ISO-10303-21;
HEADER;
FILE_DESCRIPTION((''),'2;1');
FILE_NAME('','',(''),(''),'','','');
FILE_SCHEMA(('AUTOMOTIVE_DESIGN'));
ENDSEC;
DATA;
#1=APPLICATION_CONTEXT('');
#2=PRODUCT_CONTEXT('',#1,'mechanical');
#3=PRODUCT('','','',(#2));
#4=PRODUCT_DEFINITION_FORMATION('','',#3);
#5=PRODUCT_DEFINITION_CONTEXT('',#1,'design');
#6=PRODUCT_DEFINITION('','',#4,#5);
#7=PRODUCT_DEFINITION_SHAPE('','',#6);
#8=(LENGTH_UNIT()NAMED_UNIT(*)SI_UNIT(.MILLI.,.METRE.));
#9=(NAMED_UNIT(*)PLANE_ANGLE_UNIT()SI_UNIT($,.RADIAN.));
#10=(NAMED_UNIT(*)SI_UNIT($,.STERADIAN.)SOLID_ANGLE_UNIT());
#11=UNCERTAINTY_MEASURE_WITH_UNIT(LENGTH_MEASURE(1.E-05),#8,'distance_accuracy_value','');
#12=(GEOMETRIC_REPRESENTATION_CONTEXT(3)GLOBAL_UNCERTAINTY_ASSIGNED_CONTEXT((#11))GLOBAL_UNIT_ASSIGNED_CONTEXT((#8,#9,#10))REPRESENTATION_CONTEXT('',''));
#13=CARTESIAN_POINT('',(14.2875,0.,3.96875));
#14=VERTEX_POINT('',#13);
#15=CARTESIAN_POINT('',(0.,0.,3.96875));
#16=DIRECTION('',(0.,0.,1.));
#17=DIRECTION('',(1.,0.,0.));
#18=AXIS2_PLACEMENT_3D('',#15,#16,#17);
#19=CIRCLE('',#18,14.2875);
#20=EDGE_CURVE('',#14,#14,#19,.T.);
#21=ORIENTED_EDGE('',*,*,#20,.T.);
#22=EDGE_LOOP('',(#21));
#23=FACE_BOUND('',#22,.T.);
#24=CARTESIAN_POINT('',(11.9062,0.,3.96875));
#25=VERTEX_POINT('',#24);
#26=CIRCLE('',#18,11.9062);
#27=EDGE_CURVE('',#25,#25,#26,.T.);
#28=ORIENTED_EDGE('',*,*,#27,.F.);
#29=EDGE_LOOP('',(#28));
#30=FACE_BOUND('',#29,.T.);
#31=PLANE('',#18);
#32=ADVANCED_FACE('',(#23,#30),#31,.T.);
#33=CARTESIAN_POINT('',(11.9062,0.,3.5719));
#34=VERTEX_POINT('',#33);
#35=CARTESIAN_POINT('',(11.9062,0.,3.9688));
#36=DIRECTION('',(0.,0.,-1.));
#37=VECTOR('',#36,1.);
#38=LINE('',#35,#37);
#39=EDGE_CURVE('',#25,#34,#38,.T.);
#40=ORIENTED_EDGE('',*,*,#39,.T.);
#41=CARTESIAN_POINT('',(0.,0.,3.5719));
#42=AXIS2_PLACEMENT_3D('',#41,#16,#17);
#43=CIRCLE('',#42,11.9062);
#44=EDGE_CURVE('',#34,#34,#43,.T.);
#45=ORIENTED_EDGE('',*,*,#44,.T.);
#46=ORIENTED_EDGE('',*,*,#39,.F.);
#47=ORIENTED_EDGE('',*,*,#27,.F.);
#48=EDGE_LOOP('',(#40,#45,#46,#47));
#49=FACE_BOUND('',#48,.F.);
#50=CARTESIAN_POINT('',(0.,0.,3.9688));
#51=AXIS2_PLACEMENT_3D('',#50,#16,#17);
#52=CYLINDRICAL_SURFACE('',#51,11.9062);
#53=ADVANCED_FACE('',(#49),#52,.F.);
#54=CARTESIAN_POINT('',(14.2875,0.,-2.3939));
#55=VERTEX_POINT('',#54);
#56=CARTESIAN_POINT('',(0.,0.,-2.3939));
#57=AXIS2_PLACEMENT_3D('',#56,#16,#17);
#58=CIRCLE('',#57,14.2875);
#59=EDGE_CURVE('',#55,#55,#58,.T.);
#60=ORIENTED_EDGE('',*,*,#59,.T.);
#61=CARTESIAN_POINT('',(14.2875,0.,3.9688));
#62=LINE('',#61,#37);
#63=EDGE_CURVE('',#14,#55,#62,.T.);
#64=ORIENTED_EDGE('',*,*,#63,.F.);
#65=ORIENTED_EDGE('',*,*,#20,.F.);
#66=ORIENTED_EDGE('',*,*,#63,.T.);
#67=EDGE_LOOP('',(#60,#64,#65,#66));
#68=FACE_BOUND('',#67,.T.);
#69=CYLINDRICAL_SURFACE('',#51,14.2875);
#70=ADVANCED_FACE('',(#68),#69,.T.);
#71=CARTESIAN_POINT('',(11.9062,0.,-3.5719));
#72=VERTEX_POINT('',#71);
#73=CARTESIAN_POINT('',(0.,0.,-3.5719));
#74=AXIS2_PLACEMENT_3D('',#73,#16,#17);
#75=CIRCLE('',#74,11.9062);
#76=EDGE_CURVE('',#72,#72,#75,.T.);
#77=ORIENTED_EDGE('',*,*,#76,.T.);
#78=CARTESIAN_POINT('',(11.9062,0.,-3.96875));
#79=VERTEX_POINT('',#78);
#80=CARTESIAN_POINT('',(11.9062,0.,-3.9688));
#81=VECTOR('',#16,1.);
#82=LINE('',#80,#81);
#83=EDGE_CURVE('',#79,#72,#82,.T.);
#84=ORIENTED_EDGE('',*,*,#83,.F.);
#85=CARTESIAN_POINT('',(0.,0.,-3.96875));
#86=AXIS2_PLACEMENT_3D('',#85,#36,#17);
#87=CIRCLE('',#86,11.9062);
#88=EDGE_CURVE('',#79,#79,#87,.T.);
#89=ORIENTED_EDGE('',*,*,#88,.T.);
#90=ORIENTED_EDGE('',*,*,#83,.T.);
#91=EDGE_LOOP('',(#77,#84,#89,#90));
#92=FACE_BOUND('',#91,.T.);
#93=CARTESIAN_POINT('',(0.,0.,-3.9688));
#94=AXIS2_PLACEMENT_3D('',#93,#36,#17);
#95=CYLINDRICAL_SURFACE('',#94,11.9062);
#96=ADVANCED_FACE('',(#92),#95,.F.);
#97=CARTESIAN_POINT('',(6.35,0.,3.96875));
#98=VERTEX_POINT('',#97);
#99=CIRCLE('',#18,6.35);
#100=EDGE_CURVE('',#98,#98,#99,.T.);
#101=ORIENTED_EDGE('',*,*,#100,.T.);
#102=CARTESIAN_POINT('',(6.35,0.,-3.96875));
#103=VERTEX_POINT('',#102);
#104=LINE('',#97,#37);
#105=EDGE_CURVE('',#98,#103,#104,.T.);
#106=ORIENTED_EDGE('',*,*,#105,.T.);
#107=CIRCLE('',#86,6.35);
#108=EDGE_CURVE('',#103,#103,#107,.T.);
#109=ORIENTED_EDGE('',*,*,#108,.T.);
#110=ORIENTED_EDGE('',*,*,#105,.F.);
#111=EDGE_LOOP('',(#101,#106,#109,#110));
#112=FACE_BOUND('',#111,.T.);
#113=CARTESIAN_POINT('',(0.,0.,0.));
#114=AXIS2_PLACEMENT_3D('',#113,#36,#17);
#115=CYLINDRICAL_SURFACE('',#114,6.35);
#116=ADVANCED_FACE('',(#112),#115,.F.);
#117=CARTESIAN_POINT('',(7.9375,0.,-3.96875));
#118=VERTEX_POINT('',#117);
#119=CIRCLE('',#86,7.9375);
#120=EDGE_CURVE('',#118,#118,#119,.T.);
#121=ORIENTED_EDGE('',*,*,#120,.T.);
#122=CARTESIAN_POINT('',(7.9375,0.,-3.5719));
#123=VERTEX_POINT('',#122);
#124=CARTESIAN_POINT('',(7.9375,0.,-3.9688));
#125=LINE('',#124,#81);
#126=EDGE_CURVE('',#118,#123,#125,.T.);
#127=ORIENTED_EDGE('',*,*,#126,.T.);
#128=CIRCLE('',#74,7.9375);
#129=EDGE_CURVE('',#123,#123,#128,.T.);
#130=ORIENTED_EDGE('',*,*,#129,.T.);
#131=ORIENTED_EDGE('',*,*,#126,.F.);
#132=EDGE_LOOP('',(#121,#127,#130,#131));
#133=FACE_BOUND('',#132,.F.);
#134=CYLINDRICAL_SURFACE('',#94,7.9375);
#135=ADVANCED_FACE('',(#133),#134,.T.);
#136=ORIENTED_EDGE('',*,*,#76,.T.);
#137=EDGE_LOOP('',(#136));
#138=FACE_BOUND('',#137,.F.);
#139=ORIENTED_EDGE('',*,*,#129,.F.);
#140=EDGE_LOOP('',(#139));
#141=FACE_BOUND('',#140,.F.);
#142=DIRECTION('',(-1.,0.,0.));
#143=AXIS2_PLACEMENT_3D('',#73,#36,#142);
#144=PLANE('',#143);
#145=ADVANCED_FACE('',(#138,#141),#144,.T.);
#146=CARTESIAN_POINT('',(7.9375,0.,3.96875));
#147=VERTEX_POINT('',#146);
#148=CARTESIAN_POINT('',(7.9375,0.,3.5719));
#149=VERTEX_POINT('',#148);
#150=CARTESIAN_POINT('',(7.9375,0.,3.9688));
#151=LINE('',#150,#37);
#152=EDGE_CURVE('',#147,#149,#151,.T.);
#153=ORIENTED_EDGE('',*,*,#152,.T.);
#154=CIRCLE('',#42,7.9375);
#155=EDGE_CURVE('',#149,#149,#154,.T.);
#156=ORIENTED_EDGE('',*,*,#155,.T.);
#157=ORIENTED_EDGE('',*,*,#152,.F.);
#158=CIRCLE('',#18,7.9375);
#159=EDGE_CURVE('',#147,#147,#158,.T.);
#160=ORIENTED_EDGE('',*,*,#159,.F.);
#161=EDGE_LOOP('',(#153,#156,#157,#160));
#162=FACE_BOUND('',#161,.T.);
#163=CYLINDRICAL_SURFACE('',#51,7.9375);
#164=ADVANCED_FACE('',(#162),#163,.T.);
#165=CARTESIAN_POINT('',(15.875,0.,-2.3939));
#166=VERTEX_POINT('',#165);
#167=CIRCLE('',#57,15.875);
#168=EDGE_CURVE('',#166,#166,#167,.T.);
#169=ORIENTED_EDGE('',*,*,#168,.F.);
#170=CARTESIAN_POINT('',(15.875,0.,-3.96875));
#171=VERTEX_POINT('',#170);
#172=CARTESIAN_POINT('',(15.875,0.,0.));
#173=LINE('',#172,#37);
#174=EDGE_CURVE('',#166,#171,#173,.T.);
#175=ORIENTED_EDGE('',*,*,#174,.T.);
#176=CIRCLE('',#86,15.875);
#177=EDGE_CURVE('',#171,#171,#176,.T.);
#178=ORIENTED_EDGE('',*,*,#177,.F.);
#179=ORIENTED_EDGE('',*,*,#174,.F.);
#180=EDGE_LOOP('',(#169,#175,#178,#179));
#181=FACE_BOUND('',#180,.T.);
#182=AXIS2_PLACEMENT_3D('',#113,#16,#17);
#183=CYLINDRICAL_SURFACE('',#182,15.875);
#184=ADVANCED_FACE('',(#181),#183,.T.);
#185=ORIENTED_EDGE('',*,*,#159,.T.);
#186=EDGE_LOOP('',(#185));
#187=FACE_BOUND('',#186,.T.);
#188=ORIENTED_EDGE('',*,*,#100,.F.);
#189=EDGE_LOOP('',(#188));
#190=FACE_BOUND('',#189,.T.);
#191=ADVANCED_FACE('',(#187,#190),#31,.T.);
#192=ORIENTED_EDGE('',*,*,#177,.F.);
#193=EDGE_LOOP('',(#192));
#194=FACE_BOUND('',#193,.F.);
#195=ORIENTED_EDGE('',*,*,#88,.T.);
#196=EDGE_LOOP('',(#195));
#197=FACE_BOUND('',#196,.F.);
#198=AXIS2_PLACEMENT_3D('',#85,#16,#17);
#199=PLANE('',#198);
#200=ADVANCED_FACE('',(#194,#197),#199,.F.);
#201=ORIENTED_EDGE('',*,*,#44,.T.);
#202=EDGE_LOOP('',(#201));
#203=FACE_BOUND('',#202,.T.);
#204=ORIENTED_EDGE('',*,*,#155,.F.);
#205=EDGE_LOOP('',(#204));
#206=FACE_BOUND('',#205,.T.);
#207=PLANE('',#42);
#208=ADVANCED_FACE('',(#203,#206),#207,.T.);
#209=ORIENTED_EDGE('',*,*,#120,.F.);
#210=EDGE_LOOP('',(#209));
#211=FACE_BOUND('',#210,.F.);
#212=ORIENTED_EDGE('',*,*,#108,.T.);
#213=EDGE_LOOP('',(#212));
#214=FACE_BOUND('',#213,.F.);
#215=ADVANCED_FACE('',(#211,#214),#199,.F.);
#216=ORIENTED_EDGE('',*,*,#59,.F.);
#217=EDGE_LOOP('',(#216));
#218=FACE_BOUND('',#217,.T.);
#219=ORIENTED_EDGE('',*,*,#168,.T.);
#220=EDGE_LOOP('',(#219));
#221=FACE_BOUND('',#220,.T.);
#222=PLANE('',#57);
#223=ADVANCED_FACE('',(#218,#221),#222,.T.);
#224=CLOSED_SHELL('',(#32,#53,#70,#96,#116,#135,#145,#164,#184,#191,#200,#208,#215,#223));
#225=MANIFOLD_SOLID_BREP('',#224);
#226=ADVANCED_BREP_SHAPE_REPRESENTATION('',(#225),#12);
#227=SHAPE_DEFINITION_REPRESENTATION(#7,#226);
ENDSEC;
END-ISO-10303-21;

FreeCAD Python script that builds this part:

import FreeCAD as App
import Part
import Sketcher

V = App.Vector
Q = App.Units.Quantity

doc = App.newDocument("Part")
body = doc.addObject("PartDesign::Body", "Body")

# Sketch on XY plane
sketch1 = body.newObject("Sketcher::SketchObject", "Sketch")
sketch1.AttachmentSupport = (doc.getObject("XY_Plane"), [""])
sketch1.MapMode = "FlatFace"
sketch1.addGeometry([
    Part.Circle(V(0, 0, 0), V(0, 0, 1), 16),
    Part.Circle(V(0, 0, 0), V(0, 0, 1), 6),
], False)
sketch1.addConstraint([
    Sketcher.Constraint("Coincident", 0, 3, -1, 1),
    Sketcher.Constraint("Coincident", 1, 3, -1, 1),
    Sketcher.Constraint("Diameter", 1, Q("0.5 in")),
    Sketcher.Constraint("Diameter", 0, Q("1.25 in")),
])
pad1 = body.newObject("PartDesign::Pad", "Pad")
pad1.Profile = sketch1
pad1.Length = Q("0.3125 in")
pad1.Midplane = True

# Sketch on XY plane
sketch2 = body.newObject("Sketcher::SketchObject", "Sketch001")
sketch2.AttachmentSupport = (doc.getObject("XY_Plane"), [""])
sketch2.MapMode = "FlatFace"
sketch2.AttachmentOffset = App.Placement(V(0, 0, 0.156252 * 25.4), App.Rotation())
sketch2.addGeometry([
    Part.Circle(V(0, 0, 0), V(0, 0, 1), 16),
    Part.Circle(V(0, 0, 0), V(0, 0, 1), 14),
], False)
sketch2.addConstraint([
    Sketcher.Constraint("Coincident", 0, 3, -1, 1),
    Sketcher.Constraint("Coincident", 1, 3, -1, 1),
    Sketcher.Constraint("Diameter", 1, Q("1.125 in")),
    Sketcher.Constraint("Diameter", 0, Q("1.25 in")),
])
pocket1 = body.newObject("PartDesign::Pocket", "Pocket")
pocket1.Profile = sketch2
pocket1.Length = Q("0.2505 in")

# Sketch on XY plane
sketch3 = body.newObject("Sketcher::SketchObject", "Sketch002")
sketch3.AttachmentSupport = (doc.getObject("XY_Plane"), [""])
sketch3.MapMode = "FlatFace"
sketch3.AttachmentOffset = App.Placement(V(0, 0, 0.156252 * 25.4), App.Rotation())
sketch3.addGeometry([
    Part.Circle(V(0, 0, 0), V(0, 0, 1), 12),
    Part.Circle(V(0, 0, 0), V(0, 0, 1), 8),
], False)
sketch3.addConstraint([
    Sketcher.Constraint("Coincident", 0, 3, -1, 1),
    Sketcher.Constraint("Coincident", 1, 3, -1, 1),
    Sketcher.Constraint("Diameter", 0, Q("0.9375 in")),
    Sketcher.Constraint("Diameter", 1, Q("0.625 in")),
])
pocket2 = body.newObject("PartDesign::Pocket", "Pocket001")
pocket2.Profile = sketch3
pocket2.Length = Q("0.015626 in")
doc.recompute()

mirrored = body.newObject("PartDesign::Mirrored", "Mirrored")
mirrored.Originals = [pocket2]
mirrored.MirrorPlane = (doc.getObject("XY_Plane"), [""])
body.Tip = mirrored

doc.recompute()
